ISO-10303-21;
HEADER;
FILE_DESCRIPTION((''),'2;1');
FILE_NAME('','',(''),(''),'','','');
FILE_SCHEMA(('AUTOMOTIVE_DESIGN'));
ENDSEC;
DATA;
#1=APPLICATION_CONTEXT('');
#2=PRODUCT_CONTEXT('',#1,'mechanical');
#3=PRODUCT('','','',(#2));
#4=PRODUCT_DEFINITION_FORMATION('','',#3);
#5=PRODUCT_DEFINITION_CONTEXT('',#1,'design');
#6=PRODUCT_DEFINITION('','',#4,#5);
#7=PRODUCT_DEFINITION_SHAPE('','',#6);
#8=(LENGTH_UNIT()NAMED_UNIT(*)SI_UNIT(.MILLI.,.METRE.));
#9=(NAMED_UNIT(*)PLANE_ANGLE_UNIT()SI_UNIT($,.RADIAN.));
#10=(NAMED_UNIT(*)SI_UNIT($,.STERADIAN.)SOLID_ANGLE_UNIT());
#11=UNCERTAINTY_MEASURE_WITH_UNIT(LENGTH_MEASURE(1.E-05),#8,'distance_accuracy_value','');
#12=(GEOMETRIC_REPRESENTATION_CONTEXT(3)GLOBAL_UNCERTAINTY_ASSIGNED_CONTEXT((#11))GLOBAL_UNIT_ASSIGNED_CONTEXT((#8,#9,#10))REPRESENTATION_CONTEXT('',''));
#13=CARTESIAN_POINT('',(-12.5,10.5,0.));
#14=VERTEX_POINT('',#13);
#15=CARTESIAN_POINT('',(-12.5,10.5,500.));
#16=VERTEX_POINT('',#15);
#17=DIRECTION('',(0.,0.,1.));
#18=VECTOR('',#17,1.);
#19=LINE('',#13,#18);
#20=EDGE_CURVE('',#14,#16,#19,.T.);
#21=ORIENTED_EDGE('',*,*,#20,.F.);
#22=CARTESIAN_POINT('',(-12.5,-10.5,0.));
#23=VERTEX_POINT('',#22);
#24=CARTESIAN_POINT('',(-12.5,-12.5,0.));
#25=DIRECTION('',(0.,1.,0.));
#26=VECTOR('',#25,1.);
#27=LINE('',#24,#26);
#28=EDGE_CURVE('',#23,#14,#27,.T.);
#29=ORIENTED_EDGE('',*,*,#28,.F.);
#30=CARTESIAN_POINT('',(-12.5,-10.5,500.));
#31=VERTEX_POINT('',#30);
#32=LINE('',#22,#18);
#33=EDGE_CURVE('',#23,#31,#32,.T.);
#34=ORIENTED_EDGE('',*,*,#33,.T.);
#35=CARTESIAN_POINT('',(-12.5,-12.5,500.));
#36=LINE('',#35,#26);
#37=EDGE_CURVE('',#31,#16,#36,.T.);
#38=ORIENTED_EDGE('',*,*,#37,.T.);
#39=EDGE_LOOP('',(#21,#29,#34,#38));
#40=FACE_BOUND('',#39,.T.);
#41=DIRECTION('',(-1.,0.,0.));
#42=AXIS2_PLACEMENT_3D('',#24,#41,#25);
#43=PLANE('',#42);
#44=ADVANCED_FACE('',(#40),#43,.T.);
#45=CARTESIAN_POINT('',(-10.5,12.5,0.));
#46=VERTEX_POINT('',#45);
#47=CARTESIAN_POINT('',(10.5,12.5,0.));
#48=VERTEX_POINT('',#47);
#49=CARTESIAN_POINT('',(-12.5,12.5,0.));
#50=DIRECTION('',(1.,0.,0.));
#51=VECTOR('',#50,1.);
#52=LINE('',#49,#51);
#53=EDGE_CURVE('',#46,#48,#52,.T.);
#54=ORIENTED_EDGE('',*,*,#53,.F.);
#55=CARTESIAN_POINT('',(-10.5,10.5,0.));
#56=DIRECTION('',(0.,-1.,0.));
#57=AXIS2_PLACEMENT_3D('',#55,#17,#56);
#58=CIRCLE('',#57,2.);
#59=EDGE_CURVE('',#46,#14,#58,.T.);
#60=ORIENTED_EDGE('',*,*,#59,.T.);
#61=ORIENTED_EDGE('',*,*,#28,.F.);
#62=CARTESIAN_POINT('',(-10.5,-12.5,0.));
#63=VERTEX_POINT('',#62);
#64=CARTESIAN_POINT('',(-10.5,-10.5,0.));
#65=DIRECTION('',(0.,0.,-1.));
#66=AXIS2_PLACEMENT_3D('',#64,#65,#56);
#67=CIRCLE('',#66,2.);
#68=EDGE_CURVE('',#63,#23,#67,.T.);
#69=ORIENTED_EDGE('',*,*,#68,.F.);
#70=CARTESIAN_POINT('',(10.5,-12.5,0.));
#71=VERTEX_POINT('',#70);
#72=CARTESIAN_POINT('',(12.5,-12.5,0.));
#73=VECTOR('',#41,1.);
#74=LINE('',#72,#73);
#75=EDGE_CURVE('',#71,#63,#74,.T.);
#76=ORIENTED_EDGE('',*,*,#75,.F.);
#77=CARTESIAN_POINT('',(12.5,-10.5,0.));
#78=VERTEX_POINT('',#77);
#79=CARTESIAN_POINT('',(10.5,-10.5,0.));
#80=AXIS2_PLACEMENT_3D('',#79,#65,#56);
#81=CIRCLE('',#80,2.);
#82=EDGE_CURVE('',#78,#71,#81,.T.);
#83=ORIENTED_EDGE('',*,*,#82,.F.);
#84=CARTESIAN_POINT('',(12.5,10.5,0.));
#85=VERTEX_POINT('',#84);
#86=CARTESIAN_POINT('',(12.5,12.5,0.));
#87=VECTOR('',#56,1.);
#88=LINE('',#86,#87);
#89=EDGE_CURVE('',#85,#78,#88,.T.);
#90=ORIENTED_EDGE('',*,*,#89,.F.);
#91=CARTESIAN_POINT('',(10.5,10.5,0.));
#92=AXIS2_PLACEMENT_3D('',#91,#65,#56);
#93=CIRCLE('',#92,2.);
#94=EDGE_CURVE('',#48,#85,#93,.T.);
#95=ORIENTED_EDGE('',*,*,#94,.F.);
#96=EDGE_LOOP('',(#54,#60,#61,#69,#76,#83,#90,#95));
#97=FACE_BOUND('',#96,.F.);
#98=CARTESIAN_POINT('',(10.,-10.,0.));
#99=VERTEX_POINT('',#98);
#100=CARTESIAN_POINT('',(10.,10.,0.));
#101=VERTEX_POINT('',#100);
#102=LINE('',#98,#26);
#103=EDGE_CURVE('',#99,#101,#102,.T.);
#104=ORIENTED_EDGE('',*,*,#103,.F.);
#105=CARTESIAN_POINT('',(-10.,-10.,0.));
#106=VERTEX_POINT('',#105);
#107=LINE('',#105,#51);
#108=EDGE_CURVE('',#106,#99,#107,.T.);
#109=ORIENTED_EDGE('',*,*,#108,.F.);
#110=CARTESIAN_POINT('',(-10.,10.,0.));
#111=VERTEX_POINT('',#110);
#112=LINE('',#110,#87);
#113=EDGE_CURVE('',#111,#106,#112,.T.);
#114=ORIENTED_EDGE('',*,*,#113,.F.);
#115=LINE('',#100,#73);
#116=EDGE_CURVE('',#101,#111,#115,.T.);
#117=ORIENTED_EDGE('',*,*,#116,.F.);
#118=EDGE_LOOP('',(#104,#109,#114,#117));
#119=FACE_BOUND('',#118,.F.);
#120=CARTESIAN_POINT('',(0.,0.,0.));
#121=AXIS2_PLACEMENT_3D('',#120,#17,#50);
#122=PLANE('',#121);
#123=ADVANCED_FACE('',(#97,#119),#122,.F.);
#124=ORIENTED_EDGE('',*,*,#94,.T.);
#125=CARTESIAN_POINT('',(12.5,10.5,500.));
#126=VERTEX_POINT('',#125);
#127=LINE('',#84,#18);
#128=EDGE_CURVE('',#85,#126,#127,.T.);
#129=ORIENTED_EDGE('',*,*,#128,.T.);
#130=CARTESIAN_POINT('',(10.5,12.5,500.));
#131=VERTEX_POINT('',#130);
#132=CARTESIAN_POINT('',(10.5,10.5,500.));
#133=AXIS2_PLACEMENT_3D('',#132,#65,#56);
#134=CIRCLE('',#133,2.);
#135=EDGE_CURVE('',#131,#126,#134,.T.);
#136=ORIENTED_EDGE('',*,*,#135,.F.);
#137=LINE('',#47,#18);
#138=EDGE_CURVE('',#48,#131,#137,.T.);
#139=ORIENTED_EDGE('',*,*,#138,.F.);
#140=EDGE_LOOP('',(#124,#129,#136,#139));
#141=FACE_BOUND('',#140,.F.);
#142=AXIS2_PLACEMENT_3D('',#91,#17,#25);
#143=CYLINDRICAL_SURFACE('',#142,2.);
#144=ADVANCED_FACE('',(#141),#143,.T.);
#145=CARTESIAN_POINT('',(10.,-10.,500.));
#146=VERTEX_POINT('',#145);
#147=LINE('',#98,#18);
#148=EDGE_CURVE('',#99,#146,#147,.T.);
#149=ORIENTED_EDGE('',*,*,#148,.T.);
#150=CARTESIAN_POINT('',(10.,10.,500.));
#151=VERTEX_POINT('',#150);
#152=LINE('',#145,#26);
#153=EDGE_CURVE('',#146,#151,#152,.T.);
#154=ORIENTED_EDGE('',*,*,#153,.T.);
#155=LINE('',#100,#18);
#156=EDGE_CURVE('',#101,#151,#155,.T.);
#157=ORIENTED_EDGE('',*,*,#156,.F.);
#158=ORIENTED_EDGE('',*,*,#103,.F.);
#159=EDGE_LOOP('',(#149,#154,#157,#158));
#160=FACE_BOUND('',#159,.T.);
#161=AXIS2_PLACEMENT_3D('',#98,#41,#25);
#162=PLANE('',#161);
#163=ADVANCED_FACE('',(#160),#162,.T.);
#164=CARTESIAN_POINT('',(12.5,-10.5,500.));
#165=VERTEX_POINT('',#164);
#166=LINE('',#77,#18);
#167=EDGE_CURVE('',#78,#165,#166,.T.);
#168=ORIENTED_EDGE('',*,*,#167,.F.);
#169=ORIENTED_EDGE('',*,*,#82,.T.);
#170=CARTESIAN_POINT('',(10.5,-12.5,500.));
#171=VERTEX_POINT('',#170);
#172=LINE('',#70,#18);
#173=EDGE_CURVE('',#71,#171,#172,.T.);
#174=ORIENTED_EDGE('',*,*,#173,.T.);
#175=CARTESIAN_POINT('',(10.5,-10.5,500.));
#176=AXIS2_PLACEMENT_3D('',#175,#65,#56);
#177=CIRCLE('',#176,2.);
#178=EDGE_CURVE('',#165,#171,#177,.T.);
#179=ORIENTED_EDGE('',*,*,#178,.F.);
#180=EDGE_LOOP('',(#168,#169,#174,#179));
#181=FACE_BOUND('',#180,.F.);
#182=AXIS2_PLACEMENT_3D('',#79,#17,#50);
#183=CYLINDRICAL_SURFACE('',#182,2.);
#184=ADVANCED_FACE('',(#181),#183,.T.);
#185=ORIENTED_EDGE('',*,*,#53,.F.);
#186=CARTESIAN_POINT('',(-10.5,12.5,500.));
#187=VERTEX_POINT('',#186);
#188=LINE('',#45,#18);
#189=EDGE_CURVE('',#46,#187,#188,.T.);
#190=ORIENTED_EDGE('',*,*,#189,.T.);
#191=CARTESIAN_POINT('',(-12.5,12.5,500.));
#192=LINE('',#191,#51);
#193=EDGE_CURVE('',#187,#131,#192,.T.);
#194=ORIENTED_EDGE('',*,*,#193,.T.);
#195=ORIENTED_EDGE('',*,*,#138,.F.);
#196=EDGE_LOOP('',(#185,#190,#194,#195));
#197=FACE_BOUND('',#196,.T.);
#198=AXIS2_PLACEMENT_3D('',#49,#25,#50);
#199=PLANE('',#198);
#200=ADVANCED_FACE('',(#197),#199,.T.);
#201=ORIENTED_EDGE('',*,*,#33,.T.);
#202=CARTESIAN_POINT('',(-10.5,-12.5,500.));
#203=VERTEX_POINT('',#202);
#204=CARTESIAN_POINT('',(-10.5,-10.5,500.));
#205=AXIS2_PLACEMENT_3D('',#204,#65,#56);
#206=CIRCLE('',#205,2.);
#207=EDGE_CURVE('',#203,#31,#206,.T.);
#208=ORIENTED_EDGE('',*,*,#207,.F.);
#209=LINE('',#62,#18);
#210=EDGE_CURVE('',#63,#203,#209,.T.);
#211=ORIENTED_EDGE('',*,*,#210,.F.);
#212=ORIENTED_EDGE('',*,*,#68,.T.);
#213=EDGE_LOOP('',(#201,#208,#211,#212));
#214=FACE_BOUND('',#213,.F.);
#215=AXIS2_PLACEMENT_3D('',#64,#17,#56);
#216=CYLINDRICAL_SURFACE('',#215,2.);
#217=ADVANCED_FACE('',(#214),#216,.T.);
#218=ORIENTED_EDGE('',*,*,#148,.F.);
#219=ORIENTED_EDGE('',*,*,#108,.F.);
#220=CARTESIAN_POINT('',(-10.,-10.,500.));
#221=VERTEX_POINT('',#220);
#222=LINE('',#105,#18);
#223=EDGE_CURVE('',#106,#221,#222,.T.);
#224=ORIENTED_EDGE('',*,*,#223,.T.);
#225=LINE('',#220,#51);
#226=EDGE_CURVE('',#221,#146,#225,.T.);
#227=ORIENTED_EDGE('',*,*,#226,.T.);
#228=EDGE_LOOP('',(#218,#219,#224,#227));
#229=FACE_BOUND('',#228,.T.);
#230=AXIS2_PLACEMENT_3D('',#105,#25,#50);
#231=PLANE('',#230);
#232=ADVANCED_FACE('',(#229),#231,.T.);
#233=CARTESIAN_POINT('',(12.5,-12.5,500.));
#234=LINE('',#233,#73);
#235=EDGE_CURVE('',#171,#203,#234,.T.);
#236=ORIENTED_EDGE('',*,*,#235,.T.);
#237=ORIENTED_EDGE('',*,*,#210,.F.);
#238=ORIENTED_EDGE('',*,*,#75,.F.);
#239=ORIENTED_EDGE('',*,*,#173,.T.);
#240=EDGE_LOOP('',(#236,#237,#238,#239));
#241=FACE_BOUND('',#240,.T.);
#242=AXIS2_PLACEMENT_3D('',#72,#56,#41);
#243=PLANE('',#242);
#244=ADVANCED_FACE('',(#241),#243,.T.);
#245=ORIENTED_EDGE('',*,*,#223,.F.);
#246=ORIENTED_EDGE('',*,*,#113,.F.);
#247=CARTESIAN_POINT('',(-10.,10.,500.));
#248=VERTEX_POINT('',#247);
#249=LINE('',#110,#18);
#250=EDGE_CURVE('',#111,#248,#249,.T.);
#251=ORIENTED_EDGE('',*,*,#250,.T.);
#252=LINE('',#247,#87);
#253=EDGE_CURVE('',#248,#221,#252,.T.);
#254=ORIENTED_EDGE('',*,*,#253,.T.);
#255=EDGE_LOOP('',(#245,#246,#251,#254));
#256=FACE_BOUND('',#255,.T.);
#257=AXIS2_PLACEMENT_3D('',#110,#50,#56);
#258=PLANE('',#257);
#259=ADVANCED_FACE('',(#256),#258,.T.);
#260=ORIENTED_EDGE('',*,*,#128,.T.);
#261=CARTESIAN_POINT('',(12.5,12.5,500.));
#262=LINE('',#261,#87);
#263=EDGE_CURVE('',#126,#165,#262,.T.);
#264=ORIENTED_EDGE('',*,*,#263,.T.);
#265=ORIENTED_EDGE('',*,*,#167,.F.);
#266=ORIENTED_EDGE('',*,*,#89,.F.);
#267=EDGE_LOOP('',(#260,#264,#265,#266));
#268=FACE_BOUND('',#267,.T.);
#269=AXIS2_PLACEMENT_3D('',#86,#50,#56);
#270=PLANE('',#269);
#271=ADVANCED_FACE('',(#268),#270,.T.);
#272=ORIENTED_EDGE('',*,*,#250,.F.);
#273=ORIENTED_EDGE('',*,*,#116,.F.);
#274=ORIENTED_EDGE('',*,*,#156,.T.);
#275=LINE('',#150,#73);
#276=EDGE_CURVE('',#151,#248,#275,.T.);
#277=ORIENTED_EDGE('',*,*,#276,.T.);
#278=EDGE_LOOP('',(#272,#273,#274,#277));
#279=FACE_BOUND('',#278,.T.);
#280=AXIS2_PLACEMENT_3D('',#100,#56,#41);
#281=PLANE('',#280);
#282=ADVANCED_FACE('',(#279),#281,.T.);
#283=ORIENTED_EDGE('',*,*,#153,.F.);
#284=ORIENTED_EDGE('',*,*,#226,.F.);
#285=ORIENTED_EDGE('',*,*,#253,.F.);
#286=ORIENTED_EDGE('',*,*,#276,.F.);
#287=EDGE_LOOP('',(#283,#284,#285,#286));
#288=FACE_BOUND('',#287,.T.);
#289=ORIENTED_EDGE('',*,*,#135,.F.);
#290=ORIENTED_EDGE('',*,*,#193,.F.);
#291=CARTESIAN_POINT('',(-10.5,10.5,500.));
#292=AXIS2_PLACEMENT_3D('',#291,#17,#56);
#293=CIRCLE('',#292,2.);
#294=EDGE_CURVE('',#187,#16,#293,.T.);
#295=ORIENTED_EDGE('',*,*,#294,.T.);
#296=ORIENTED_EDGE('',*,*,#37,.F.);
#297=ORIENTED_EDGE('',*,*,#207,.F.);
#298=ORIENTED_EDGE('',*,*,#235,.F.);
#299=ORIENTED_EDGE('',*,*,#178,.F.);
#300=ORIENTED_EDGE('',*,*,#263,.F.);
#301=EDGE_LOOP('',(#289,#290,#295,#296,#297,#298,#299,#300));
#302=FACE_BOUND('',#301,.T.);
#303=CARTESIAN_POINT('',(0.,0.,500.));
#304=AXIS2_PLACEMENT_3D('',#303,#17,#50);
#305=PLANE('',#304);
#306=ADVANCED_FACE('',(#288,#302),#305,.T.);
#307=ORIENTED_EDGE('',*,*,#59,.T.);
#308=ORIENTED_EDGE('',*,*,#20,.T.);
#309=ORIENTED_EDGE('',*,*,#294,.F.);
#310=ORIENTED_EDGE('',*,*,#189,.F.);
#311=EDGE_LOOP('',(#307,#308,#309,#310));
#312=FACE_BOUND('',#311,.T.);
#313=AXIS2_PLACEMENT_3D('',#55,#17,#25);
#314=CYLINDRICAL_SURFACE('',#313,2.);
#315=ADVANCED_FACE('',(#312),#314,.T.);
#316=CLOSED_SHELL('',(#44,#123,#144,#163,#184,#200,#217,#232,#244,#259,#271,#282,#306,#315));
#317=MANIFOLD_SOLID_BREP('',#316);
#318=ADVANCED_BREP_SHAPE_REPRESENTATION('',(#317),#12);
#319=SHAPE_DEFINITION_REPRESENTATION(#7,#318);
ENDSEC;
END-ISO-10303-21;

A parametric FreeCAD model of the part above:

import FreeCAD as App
import Part
import Sketcher
from FreeCAD import Vector


def edges_at(feature, points):
    """Names of the edges that pass closest to the given points."""
    edges = feature.Shape.Edges
    near = lambda p: min(range(len(edges)), key=lambda i: edges[i].distToShape(Part.Vertex(*p))[0])
    return sorted({f"Edge{near(p) + 1}" for p in points})


def add_polygon(sketch, points):
    """Adds a closed chain of lines whose ends are joined by coincident constraints."""
    first, n = sketch.GeometryCount, len(points)
    for a, b in zip(points, points[1:] + points[:1]):
        sketch.addGeometry(Part.LineSegment(App.Vector(*a, 0), App.Vector(*b, 0)), False)
    for i in range(n):
        sketch.addConstraint(Sketcher.Constraint("Coincident", first + i, 2, first + (i + 1) % n, 1))

doc = App.newDocument("Part")
params = doc.addObject("Spreadsheet::Sheet", "Params")
for row, (alias, value) in enumerate([
    ("sketch1_width", "25 mm"),
    ("pad1_length", "500 mm"),
    ("fillet_radius", "2 mm"),
], start=1):
    params.set(f"A{row}", alias)
    params.set(f"B{row}", "=" + value)
    params.setAlias(f"B{row}", alias)

body = doc.addObject("PartDesign::Body", "Body")

# Sketch on XY plane
sketch1 = body.newObject("Sketcher::SketchObject", "Sketch")
sketch1.AttachmentSupport = (doc.getObject("XY_Plane"), [""])
sketch1.MapMode = "FlatFace"
add_polygon(sketch1, [(12, 12), (-12, 12), (-12, -12), (12, -12)])  # lines 0-3
add_polygon(sketch1, [(-10, 10), (10, 10), (10, -10), (-10, -10)])  # lines 4-7
sketch1.addConstraint(Sketcher.Constraint("Horizontal", 0))
sketch1.addConstraint(Sketcher.Constraint("Vertical", 1))
sketch1.addConstraint(Sketcher.Constraint("Horizontal", 2))
sketch1.addConstraint(Sketcher.Constraint("Vertical", 3))
sketch1.addConstraint(Sketcher.Constraint("Horizontal", 4))
sketch1.addConstraint(Sketcher.Constraint("Vertical", 5))
sketch1.addConstraint(Sketcher.Constraint("Horizontal", 6))
sketch1.addConstraint(Sketcher.Constraint("Vertical", 7))
sketch1.addConstraint(Sketcher.Constraint("Symmetric", 0, 2, 2, 2, -1, 1))
sketch1.addConstraint(Sketcher.Constraint("Symmetric", 4, 2, 6, 2, -1, 1))
sketch1.addConstraint(Sketcher.Constraint("Equal", 2, 1))
sketch1.addConstraint(Sketcher.Constraint("Equal", 6, 5))
sketch1.addConstraint(Sketcher.Constraint("DistanceX", 0, 2, 0, 1, 25.0))
sketch1.addConstraint(Sketcher.Constraint("DistanceX", 4, 2, 3, 2, 2.5))
sketch1.setExpression("Constraints[20]", "Params.sketch1_width")
pad1 = body.newObject("PartDesign::Pad", "Pad")
pad1.Profile = sketch1
pad1.setExpression("Length", "Params.pad1_length")
doc.recompute()

fillet = body.newObject("PartDesign::Fillet", "Fillet")
fillet.Base = (pad1, edges_at(pad1, [
    (12.5, 12.5, 250),
    (-12.5, 12.5, 250),
    (12.5, -12.5, 250),
    (-12.5, -12.5, 250),
]))
fillet.setExpression("Radius", "Params.fillet_radius")

doc.recompute()
